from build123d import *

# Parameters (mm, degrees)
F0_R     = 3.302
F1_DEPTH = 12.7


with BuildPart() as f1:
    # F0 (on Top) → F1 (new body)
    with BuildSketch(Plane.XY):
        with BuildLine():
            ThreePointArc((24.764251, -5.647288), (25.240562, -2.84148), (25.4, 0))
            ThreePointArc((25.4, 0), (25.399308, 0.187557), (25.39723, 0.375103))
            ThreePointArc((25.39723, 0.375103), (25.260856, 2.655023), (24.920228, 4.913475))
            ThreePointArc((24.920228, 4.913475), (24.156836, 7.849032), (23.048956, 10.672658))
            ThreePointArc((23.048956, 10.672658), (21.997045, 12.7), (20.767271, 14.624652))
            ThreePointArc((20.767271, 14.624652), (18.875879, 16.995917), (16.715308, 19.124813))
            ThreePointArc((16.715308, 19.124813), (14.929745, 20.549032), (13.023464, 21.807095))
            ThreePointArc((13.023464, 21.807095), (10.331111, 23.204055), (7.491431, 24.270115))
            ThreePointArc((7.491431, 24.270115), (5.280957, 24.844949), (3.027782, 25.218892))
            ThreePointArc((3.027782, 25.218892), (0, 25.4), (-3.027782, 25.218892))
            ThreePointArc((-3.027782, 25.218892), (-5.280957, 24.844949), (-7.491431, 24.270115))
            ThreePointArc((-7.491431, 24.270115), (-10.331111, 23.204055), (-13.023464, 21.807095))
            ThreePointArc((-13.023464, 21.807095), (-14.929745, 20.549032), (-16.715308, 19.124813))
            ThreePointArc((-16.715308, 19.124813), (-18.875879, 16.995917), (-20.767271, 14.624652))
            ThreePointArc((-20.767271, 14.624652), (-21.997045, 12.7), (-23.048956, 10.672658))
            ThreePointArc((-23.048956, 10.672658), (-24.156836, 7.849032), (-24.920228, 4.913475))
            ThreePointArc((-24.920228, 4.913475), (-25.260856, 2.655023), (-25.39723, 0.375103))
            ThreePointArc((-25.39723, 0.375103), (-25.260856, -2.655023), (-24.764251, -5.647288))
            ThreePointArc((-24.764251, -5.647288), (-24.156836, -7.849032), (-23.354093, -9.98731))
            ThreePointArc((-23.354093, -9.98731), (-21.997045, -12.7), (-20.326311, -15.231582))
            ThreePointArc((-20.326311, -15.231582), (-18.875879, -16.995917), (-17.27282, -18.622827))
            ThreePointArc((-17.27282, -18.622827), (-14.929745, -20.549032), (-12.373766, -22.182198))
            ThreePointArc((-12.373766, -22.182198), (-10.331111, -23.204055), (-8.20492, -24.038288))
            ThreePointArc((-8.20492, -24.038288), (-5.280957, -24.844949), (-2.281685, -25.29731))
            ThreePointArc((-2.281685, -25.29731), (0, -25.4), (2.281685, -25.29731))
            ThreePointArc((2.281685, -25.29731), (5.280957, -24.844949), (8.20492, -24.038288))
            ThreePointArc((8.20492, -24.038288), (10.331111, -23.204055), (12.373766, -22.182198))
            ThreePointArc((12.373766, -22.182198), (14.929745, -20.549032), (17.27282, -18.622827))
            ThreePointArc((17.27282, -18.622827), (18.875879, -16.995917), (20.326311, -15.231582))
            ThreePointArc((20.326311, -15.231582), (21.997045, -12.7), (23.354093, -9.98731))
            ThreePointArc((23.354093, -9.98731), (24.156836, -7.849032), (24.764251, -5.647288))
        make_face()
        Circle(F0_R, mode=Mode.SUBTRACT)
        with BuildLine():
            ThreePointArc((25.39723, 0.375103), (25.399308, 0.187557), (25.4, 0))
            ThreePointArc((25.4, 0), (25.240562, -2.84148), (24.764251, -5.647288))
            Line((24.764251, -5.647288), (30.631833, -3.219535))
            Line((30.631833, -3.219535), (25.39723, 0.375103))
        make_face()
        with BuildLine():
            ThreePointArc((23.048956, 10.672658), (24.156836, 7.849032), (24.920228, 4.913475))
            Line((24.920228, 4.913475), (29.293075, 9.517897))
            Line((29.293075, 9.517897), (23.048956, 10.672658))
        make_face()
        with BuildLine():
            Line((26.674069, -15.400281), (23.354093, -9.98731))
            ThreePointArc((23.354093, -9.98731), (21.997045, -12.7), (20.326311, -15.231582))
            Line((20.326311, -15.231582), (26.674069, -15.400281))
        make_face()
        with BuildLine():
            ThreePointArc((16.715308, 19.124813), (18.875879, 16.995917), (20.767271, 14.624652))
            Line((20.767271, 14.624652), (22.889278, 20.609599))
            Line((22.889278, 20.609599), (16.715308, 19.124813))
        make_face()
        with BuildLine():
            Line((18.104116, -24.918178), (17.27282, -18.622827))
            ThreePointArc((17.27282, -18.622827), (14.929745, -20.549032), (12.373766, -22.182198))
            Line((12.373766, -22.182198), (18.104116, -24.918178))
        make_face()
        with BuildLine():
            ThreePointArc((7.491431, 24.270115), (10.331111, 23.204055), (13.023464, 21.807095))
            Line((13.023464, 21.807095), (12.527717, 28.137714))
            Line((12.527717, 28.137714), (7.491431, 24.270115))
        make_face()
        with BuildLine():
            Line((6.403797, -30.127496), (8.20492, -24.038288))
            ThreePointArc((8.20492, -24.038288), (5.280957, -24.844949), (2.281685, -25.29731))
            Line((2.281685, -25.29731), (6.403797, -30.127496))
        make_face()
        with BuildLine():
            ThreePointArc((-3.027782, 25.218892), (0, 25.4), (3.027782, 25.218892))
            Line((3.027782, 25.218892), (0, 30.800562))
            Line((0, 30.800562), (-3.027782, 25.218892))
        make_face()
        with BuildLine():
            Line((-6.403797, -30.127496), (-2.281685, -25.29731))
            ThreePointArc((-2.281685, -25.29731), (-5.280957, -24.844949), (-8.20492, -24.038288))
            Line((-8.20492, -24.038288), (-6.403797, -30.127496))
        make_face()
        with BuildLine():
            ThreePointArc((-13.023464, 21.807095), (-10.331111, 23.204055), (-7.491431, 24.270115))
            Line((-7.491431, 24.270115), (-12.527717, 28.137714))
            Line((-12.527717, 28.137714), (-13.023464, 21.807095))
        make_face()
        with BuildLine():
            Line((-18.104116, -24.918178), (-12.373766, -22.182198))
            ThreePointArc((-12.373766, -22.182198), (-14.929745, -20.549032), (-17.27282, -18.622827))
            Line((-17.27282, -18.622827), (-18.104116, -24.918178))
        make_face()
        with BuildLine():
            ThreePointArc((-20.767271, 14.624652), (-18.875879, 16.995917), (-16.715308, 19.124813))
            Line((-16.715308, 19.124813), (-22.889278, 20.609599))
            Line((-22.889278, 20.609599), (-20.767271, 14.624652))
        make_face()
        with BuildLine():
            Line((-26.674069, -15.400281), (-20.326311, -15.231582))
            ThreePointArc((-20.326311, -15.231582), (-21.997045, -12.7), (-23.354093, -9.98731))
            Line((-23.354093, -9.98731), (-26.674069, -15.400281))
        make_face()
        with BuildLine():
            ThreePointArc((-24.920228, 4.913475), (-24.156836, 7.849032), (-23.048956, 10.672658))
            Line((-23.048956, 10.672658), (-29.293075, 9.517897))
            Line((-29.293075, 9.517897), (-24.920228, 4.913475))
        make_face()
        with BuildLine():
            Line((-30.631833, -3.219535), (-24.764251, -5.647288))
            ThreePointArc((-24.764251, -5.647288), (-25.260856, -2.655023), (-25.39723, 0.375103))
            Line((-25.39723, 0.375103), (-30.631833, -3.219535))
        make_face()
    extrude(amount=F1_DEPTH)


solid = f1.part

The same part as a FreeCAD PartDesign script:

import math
import FreeCAD as App
import Part
import Sketcher

V = App.Vector
Q = App.Units.Quantity

doc = App.newDocument("Part")
body = doc.addObject("PartDesign::Body", "Body")

sketch1 = body.newObject("Sketcher::SketchObject", "Sketch")
sketch1.AttachmentSupport = (doc.getObject("XY_Plane"), [""])
sketch1.MapMode = "FlatFace"
sketch1.addGeometry([
    Part.ArcOfCircle(Part.Circle(V(0.000109, -0.000039, 0), V(0, 0, 1), 25.399885), math.radians(-23.153849), math.radians(-12.846136)),
    Part.LineSegment(V(24.764251, -5.647288, 0), V(30.631833, -3.219535, 0)),
    Part.LineSegment(V(30.631833, -3.219535, 0), V(25.39723, 0.375103, 0)),
    Part.ArcOfCircle(Part.Circle(V(-0.00002, -0.000001, 0), V(0, 0, 1), 25.40002), math.radians(0.846168), math.radians(11.153829)),
    Part.LineSegment(V(24.920228, 4.913475, 0), V(29.293075, 9.517897, 0)),
    Part.LineSegment(V(29.293075, 9.517897, 0), V(23.048956, 10.672658, 0)),
    Part.ArcOfCircle(Part.Circle(V(-0.000031, -0.000019, 0), V(0, 0, 1), 25.400036), math.radians(24.846176), math.radians(35.153828)),
    Part.LineSegment(V(20.767271, 14.624652, 0), V(22.889278, 20.609599, 0)),
    Part.LineSegment(V(22.889278, 20.609599, 0), V(16.715308, 19.124813, 0)),
    Part.ArcOfCircle(Part.Circle(V(0.000003, 0.000007, 0), V(0, 0, 1), 25.399993), math.radians(48.846161), math.radians(59.153833)),
    Part.LineSegment(V(13.023464, 21.807095, 0), V(12.527717, 28.137714, 0)),
    Part.LineSegment(V(12.527717, 28.137714, 0), V(7.491431, 24.270115, 0)),
    Part.ArcOfCircle(Part.Circle(V(0.000003, -0.000008, 0), V(0, 0, 1), 25.400007), math.radians(72.846179), math.radians(83.153843)),
    Part.LineSegment(V(3.027782, 25.218892, 0), V(0, 30.800562, 0)),
    Part.LineSegment(V(0, 30.800562, 0), V(-3.027782, 25.218892, 0)),
    Part.ArcOfCircle(Part.Circle(V(-0.000003, -0.000008, 0), V(0, 0, 1), 25.400007), math.radians(96.846157), math.radians(107.153821)),
    Part.LineSegment(V(-7.491431, 24.270115, 0), V(-12.527717, 28.137714, 0)),
    Part.LineSegment(V(-12.527717, 28.137714, 0), V(-13.023464, 21.807095, 0)),
    Part.ArcOfCircle(Part.Circle(V(-0.000003, 0.000007, 0), V(0, 0, 1), 25.399993), math.radians(120.846167), math.radians(131.153839)),
    Part.LineSegment(V(-16.715308, 19.124813, 0), V(-22.889278, 20.609599, 0)),
    Part.LineSegment(V(-22.889278, 20.609599, 0), V(-20.767271, 14.624652, 0)),
    Part.ArcOfCircle(Part.Circle(V(0.000031, -0.000019, 0), V(0, 0, 1), 25.400036), math.radians(144.846172), math.radians(155.153824)),
    Part.LineSegment(V(-23.048956, 10.672658, 0), V(-29.293075, 9.517897, 0)),
    Part.LineSegment(V(-29.293075, 9.517897, 0), V(-24.920228, 4.913475, 0)),
    Part.ArcOfCircle(Part.Circle(V(0.00002, -0.000001, 0), V(0, 0, 1), 25.40002), math.radians(168.846171), math.radians(179.153832)),
    Part.LineSegment(V(-25.39723, 0.375103, 0), V(-30.631833, -3.219535, 0)),
    Part.LineSegment(V(-30.631833, -3.219535, 0), V(-24.764251, -5.647288, 0)),
    Part.ArcOfCircle(Part.Circle(V(-0.000109, -0.000039, 0), V(0, 0, 1), 25.399885), math.radians(-167.153864), math.radians(-156.846151)),
    Part.LineSegment(V(-23.354093, -9.98731, 0), V(-26.674069, -15.400281, 0)),
    Part.LineSegment(V(-26.674069, -15.400281, 0), V(-20.326311, -15.231582, 0)),
    Part.ArcOfCircle(Part.Circle(V(-0.000001, 0.000001, 0), V(0, 0, 1), 25.4), math.radians(-143.153832), math.radians(-132.846163)),
    Part.LineSegment(V(-17.27282, -18.622827, 0), V(-18.104116, -24.918178, 0)),
    Part.LineSegment(V(-18.104116, -24.918178, 0), V(-12.373766, -22.182198, 0)),
    Part.ArcOfCircle(Part.Circle(V(-0.000049, -0.000113, 0), V(0, 0, 1), 25.399877), math.radians(-119.153861), math.radians(-108.846143)),
    Part.LineSegment(V(-8.20492, -24.038288, 0), V(-6.403797, -30.127496, 0)),
    Part.LineSegment(V(-6.403797, -30.127496, 0), V(-2.281685, -25.29731, 0)),
    Part.ArcOfCircle(Part.Circle(V(0, -0.000099, 0), V(0, 0, 1), 25.399901), math.radians(-95.153854), math.radians(-84.846146)),
    Part.LineSegment(V(2.281685, -25.29731, 0), V(6.403797, -30.127496, 0)),
    Part.LineSegment(V(6.403797, -30.127496, 0), V(8.20492, -24.038288, 0)),
    Part.ArcOfCircle(Part.Circle(V(0.000049, -0.000113, 0), V(0, 0, 1), 25.399877), math.radians(-71.153857), math.radians(-60.846139)),
    Part.LineSegment(V(12.373766, -22.182198, 0), V(18.104116, -24.918178, 0)),
    Part.LineSegment(V(18.104116, -24.918178, 0), V(17.27282, -18.622827, 0)),
    Part.ArcOfCircle(Part.Circle(V(0.000001, 0.000001, 0), V(0, 0, 1), 25.4), math.radians(-47.153837), math.radians(-36.846168)),
    Part.LineSegment(V(20.326311, -15.231582, 0), V(26.674069, -15.400281, 0)),
    Part.LineSegment(V(26.674069, -15.400281, 0), V(23.354093, -9.98731, 0)),
    Part.Circle(V(0, 0, 0), V(0, 0, 1), 3.302),
], False)
sketch1.addConstraint([
    Sketcher.Constraint("Coincident", 0, 2, 1, 1),
    Sketcher.Constraint("Coincident", 1, 2, 2, 1),
    Sketcher.Constraint("Coincident", 2, 2, 3, 1),
    Sketcher.Constraint("Coincident", 3, 2, 4, 1),
    Sketcher.Constraint("Coincident", 4, 2, 5, 1),
    Sketcher.Constraint("Coincident", 5, 2, 6, 1),
    Sketcher.Constraint("Coincident", 6, 2, 7, 1),
    Sketcher.Constraint("Coincident", 7, 2, 8, 1),
    Sketcher.Constraint("Coincident", 8, 2, 9, 1),
    Sketcher.Constraint("Coincident", 9, 2, 10, 1),
    Sketcher.Constraint("Coincident", 10, 2, 11, 1),
    Sketcher.Constraint("Coincident", 11, 2, 12, 1),
    Sketcher.Constraint("Coincident", 12, 2, 13, 1),
    Sketcher.Constraint("Coincident", 13, 2, 14, 1),
    Sketcher.Constraint("Coincident", 14, 2, 15, 1),
    Sketcher.Constraint("Coincident", 15, 2, 16, 1),
    Sketcher.Constraint("Coincident", 16, 2, 17, 1),
    Sketcher.Constraint("Coincident", 17, 2, 18, 1),
    Sketcher.Constraint("Coincident", 18, 2, 19, 1),
    Sketcher.Constraint("Coincident", 19, 2, 20, 1),
    Sketcher.Constraint("Coincident", 20, 2, 21, 1),
    Sketcher.Constraint("Coincident", 21, 2, 22, 1),
    Sketcher.Constraint("Coincident", 22, 2, 23, 1),
    Sketcher.Constraint("Coincident", 23, 2, 24, 1),
    Sketcher.Constraint("Coincident", 24, 2, 25, 1),
    Sketcher.Constraint("Coincident", 25, 2, 26, 1),
    Sketcher.Constraint("Coincident", 26, 2, 27, 1),
    Sketcher.Constraint("Coincident", 27, 2, 28, 1),
    Sketcher.Constraint("Coincident", 28, 2, 29, 1),
    Sketcher.Constraint("Coincident", 29, 2, 30, 1),
    Sketcher.Constraint("Coincident", 30, 2, 31, 1),
    Sketcher.Constraint("Coincident", 31, 2, 32, 1),
    Sketcher.Constraint("Coincident", 32, 2, 33, 1),
    Sketcher.Constraint("Coincident", 33, 2, 34, 1),
    Sketcher.Constraint("Coincident", 34, 2, 35, 1),
    Sketcher.Constraint("Coincident", 35, 2, 36, 1),
    Sketcher.Constraint("Coincident", 36, 2, 37, 1),
    Sketcher.Constraint("Coincident", 37, 2, 38, 1),
    Sketcher.Constraint("Coincident", 38, 2, 39, 1),
    Sketcher.Constraint("Coincident", 39, 2, 40, 1),
    Sketcher.Constraint("Coincident", 40, 2, 41, 1),
    Sketcher.Constraint("Coincident", 41, 2, 42, 1),
    Sketcher.Constraint("Coincident", 42, 2, 43, 1),
    Sketcher.Constraint("Coincident", 43, 2, 44, 1),
    Sketcher.Constraint("Coincident", 44, 2, 0, 1),
    Sketcher.Constraint("Coincident", 9, 3, -1, 1),
    Sketcher.Constraint("Coincident", 12, 3, -1, 1),
    Sketcher.Constraint("Coincident", 15, 3, -1, 1),
    Sketcher.Constraint("Coincident", 18, 3, -1, 1),
    Sketcher.Constraint("Coincident", 30, 3, -1, 1),
    Sketcher.Constraint("Coincident", 42, 3, -1, 1),
    Sketcher.Constraint("Coincident", 45, 3, -1, 1),
    Sketcher.Constraint("Equal", 12, 15),
    Sketcher.Constraint("Equal", 9, 18),
    Sketcher.Constraint("Equal", 6, 21),
    Sketcher.Constraint("Equal", 3, 24),
    Sketcher.Constraint("Equal", 0, 27),
    Sketcher.Constraint("Equal", 33, 39),
    Sketcher.Constraint("Equal", 30, 42),
    Sketcher.Constraint("Symmetric", 3, 3, 24, 3, -1, 1),
    Sketcher.Constraint("Symmetric", 6, 3, 21, 3, -2),
    Sketcher.Constraint("Symmetric", 0, 3, 27, 3, -2),
    Sketcher.Constraint("Symmetric", 33, 3, 39, 3, -2),
    Sketcher.Constraint("Symmetric", 10, 2, 16, 2, -2),
    Sketcher.Constraint("Symmetric", 7, 2, 19, 2, -2),
    Sketcher.Constraint("Symmetric", 4, 2, 22, 2, -2),
    Sketcher.Constraint("Symmetric", 3, 2, 23, 2, -2),
    Sketcher.Constraint("Symmetric", 1, 2, 25, 2, -2),
    Sketcher.Constraint("Symmetric", 35, 2, 36, 2, -2),
    Sketcher.Constraint("Symmetric", 34, 2, 37, 2, -2),
    Sketcher.Constraint("Symmetric", 31, 2, 40, 2, -2),
    Sketcher.Constraint("Symmetric", 28, 2, 43, 2, -2),
    Sketcher.Constraint("PointOnObject", 13, 2, -2),
    Sketcher.Constraint("Horizontal", 12, 2, 14, 2),
    Sketcher.Constraint("Horizontal", 11, 2, 15, 2),
    Sketcher.Constraint("Horizontal", 9, 2, 17, 2),
    Sketcher.Constraint("Horizontal", 8, 2, 18, 2),
    Sketcher.Constraint("Horizontal", 6, 2, 20, 2),
    Sketcher.Constraint("Horizontal", 5, 2, 21, 2),
    Sketcher.Constraint("Horizontal", 2, 2, 24, 2),
    Sketcher.Constraint("Horizontal", 0, 2, 26, 2),
    Sketcher.Constraint("Horizontal", 33, 2, 38, 2),
    Sketcher.Constraint("Horizontal", 32, 2, 39, 2),
    Sketcher.Constraint("Horizontal", 30, 2, 41, 2),
    Sketcher.Constraint("Horizontal", 29, 2, 42, 2),
    Sketcher.Constraint("Horizontal", 27, 2, 44, 2),
    Sketcher.Constraint("Equal", 1, 2),
    Sketcher.Constraint("Equal", 2, 4),
    Sketcher.Constraint("Equal", 4, 5),
    Sketcher.Constraint("Equal", 5, 7),
    Sketcher.Constraint("Equal", 7, 8),
    Sketcher.Constraint("Equal", 8, 10),
    Sketcher.Constraint("Equal", 10, 11),
    Sketcher.Constraint("Equal", 11, 13),
    Sketcher.Constraint("Equal", 26, 28),
    Sketcher.Constraint("Equal", 28, 29),
    Sketcher.Constraint("Equal", 29, 31),
    Sketcher.Constraint("Equal", 31, 32),
    Sketcher.Constraint("Equal", 32, 34),
    Sketcher.Constraint("Equal", 34, 35),
    Sketcher.Constraint("Radius", 30, Q("1 in")),
    Sketcher.Constraint("Diameter", 45, Q("0.26 in")),
    Sketcher.Constraint("Distance", 1, Q("0.25 in")),
    Sketcher.Constraint("Radius", 36, Q("25.399901 mm")),
    Sketcher.Constraint("Radius", 3, Q("25.40002 mm")),
    Sketcher.Constraint("Radius", 0, Q("25.399885 mm")),
    Sketcher.Constraint("Radius", 6, Q("25.400036 mm")),
    Sketcher.Constraint("Radius", 9, Q("25.399993 mm")),
    Sketcher.Constraint("Radius", 12, Q("25.400007 mm")),
    Sketcher.Constraint("Radius", 33, Q("25.399877 mm")),
    Sketcher.Constraint("DistanceY", -1, 1, 7, 2, Q("20.609599 mm")),
    Sketcher.Constraint("DistanceX", -1, 1, 0, 3, Q("0.000109 mm")),
    Sketcher.Constraint("DistanceX", -1, 1, 0, 2, Q("24.764251 mm")),
    Sketcher.Constraint("DistanceX", -1, 1, 2, 2, Q("25.39723 mm")),
    Sketcher.Constraint("DistanceX", -1, 1, 3, 2, Q("24.920228 mm")),
    Sketcher.Constraint("DistanceX", -1, 1, 6, 2, Q("20.767271 mm")),
    Sketcher.Constraint("DistanceX", -1, 1, 7, 2, Q("22.889278 mm")),
    Sketcher.Constraint("DistanceX", -1, 1, 11, 2, Q("7.491431 mm")),
    Sketcher.Constraint("DistanceY", -1, 1, 13, 2, Q("30.800562 mm")),
    Sketcher.Constraint("DistanceY", 27, 2, -1, 1, Q("9.98731 mm")),
    Sketcher.Constraint("DistanceX", 28, 2, -1, 1, Q("26.674069 mm")),
    Sketcher.Constraint("DistanceY", 28, 2, -1, 1, Q("15.400281 mm")),
    Sketcher.Constraint("DistanceX", 30, 2, -1, 1, Q("17.27282 mm")),
    Sketcher.Constraint("DistanceY", 31, 2, -1, 1, Q("24.918178 mm")),
    Sketcher.Constraint("DistanceX", 33, 2, -1, 1, Q("8.20492 mm")),
    Sketcher.Constraint("DistanceY", 35, 2, -1, 1, Q("25.29731 mm")),
    Sketcher.Constraint("DistanceY", 38, 2, -1, 1, Q("24.038288 mm")),
    Sketcher.Constraint("DistanceY", 33, 3, -1, 1, Q("0.000113 mm")),
    Sketcher.Constraint("DistanceX", -1, 1, 1, 2, Q("30.631833 mm")),
    Sketcher.Constraint("DistanceX", -1, 1, 4, 2, Q("29.293075 mm")),
    Sketcher.Constraint("DistanceX", -1, 1, 5, 2, Q("23.048956 mm")),
    Sketcher.Constraint("DistanceX", -1, 1, 9, 2, Q("13.023464 mm")),
    Sketcher.Constraint("DistanceX", 34, 2, -1, 1, Q("6.403797 mm")),
])
pad1 = body.newObject("PartDesign::Pad", "Pad")
pad1.Profile = sketch1
pad1.Length = Q("0.5 in")

doc.recompute()
